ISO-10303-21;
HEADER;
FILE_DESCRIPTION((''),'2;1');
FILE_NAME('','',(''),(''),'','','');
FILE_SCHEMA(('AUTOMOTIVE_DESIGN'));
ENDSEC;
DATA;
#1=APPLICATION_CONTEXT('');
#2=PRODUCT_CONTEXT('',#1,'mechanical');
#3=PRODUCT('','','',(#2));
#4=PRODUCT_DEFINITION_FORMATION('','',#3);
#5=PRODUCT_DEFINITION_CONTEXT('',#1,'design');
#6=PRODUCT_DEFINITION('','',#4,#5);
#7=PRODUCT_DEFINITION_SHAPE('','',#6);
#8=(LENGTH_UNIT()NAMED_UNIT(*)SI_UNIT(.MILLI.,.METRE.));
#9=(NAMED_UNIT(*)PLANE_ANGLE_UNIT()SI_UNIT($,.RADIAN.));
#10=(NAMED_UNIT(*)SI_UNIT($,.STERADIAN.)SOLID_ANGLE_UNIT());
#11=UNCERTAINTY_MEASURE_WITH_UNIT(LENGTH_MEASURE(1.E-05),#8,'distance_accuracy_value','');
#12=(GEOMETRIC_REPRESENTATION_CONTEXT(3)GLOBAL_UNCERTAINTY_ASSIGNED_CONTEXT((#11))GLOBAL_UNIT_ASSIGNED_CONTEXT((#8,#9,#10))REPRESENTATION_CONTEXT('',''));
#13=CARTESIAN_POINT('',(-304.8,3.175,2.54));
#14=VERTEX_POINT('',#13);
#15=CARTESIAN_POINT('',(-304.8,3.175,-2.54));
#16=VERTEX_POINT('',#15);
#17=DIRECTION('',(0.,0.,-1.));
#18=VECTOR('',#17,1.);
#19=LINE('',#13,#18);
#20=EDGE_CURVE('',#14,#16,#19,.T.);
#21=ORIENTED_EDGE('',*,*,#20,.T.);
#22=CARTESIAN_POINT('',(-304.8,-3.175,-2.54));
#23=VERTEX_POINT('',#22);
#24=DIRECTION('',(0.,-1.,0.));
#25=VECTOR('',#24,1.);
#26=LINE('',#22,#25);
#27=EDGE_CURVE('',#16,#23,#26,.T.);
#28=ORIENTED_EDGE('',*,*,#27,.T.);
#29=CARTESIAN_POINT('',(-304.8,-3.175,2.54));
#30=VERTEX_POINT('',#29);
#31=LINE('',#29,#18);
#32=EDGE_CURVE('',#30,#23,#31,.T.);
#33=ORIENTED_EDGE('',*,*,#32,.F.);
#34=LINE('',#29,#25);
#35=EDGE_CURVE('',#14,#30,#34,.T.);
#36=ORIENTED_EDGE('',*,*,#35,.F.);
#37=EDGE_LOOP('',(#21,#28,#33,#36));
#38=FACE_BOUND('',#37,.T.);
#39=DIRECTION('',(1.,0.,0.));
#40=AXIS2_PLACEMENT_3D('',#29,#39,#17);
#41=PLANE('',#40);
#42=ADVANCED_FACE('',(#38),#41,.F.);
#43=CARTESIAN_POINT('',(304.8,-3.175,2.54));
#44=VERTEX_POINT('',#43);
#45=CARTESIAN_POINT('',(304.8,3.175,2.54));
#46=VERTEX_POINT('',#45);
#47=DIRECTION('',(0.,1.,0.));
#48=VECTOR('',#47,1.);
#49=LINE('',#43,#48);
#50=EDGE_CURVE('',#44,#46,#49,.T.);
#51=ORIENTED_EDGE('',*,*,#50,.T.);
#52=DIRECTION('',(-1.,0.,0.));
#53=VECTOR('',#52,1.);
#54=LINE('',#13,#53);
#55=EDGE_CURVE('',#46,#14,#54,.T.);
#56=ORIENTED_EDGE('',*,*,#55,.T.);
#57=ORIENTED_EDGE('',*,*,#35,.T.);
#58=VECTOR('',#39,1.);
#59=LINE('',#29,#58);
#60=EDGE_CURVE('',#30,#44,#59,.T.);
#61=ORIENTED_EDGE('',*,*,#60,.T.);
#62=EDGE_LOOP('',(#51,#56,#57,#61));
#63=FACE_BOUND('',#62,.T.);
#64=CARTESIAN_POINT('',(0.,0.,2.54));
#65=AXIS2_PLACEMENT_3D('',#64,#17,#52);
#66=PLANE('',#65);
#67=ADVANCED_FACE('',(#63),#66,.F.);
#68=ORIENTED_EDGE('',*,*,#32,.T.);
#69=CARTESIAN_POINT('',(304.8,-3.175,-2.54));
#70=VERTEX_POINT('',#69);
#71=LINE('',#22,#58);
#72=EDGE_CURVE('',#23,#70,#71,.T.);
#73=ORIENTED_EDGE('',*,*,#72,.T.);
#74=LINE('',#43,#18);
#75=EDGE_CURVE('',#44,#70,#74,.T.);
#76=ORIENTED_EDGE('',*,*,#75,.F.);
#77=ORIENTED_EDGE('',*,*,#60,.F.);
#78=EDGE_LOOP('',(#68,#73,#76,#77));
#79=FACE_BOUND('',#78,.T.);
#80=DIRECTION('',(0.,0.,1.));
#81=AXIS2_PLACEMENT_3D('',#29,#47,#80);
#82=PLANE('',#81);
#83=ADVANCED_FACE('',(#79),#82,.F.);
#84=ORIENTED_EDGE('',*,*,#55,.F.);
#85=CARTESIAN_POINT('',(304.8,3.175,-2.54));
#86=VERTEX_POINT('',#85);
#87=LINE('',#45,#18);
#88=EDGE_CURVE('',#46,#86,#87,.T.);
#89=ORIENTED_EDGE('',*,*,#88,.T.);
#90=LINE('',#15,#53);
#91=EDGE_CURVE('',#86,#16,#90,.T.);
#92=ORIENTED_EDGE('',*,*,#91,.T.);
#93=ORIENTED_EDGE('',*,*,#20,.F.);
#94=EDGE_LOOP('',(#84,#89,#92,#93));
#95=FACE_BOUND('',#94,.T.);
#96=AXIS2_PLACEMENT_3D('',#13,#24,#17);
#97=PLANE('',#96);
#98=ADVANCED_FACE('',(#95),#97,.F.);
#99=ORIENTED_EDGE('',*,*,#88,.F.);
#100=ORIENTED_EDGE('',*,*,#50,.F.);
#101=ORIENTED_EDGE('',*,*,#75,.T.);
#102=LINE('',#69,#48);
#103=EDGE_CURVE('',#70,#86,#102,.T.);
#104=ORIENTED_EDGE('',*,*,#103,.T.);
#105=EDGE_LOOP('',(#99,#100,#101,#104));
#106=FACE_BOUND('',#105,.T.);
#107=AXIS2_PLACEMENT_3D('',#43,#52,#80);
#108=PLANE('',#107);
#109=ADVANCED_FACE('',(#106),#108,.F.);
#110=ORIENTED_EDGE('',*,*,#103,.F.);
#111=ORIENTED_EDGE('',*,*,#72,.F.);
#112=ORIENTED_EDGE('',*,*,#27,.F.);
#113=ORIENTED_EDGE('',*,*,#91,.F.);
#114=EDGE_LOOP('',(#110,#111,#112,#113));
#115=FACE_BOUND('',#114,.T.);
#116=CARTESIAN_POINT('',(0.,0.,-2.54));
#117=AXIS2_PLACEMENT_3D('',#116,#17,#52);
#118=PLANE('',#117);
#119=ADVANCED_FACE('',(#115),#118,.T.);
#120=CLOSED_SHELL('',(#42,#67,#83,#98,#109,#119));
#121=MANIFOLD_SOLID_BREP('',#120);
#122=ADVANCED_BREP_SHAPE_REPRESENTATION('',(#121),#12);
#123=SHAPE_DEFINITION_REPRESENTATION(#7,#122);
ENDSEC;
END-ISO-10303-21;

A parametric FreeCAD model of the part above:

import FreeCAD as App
import Part
import Sketcher
Q = App.Units.Quantity


def add_polygon(sketch, points):
    """Adds a closed chain of lines whose ends are joined by coincident constraints."""
    first, n = sketch.GeometryCount, len(points)
    for a, b in zip(points, points[1:] + points[:1]):
        sketch.addGeometry(Part.LineSegment(App.Vector(*a, 0), App.Vector(*b, 0)), False)
    for i in range(n):
        sketch.addConstraint(Sketcher.Constraint("Coincident", first + i, 2, first + (i + 1) % n, 1))

doc = App.newDocument("Part")
params = doc.addObject("Spreadsheet::Sheet", "Params")
for row, (alias, value) in enumerate([
    ("sketch1_width", "24 in"),
    ("sketch1_height", "0.25 in"),
    ("pad1_length", "0.2 in"),
], start=1):
    params.set(f"A{row}", alias)
    params.set(f"B{row}", "=" + value)
    params.setAlias(f"B{row}", alias)

body = doc.addObject("PartDesign::Body", "Body")

sketch1 = body.newObject("Sketcher::SketchObject", "Sketch")
sketch1.AttachmentSupport = (doc.getObject("XY_Plane"), [""])
sketch1.MapMode = "FlatFace"
add_polygon(sketch1, [(-304.8, 3.175), (-304.8, -3.175), (304.8, -3.175), (304.8, 3.175)])
sketch1.addConstraint([
    Sketcher.Constraint("Vertical", 0),
    Sketcher.Constraint("Horizontal", 1),
    Sketcher.Constraint("Vertical", 2),
    Sketcher.Constraint("Horizontal", 3),
    Sketcher.Constraint("Symmetric", 0, 2, 2, 2, -1, 1),
    Sketcher.Constraint("DistanceX", 1, 1, 1, 2, Q("24 in")),
    Sketcher.Constraint("DistanceY", 0, 2, 0, 1, Q("0.25 in")),
])
sketch1.setExpression("Constraints[9]", "Params.sketch1_width")
sketch1.setExpression("Constraints[10]", "Params.sketch1_height")
pad1 = body.newObject("PartDesign::Pad", "Pad")
pad1.Profile = sketch1
pad1.setExpression("Length", "Params.pad1_length")
pad1.Midplane = True

doc.recompute()
